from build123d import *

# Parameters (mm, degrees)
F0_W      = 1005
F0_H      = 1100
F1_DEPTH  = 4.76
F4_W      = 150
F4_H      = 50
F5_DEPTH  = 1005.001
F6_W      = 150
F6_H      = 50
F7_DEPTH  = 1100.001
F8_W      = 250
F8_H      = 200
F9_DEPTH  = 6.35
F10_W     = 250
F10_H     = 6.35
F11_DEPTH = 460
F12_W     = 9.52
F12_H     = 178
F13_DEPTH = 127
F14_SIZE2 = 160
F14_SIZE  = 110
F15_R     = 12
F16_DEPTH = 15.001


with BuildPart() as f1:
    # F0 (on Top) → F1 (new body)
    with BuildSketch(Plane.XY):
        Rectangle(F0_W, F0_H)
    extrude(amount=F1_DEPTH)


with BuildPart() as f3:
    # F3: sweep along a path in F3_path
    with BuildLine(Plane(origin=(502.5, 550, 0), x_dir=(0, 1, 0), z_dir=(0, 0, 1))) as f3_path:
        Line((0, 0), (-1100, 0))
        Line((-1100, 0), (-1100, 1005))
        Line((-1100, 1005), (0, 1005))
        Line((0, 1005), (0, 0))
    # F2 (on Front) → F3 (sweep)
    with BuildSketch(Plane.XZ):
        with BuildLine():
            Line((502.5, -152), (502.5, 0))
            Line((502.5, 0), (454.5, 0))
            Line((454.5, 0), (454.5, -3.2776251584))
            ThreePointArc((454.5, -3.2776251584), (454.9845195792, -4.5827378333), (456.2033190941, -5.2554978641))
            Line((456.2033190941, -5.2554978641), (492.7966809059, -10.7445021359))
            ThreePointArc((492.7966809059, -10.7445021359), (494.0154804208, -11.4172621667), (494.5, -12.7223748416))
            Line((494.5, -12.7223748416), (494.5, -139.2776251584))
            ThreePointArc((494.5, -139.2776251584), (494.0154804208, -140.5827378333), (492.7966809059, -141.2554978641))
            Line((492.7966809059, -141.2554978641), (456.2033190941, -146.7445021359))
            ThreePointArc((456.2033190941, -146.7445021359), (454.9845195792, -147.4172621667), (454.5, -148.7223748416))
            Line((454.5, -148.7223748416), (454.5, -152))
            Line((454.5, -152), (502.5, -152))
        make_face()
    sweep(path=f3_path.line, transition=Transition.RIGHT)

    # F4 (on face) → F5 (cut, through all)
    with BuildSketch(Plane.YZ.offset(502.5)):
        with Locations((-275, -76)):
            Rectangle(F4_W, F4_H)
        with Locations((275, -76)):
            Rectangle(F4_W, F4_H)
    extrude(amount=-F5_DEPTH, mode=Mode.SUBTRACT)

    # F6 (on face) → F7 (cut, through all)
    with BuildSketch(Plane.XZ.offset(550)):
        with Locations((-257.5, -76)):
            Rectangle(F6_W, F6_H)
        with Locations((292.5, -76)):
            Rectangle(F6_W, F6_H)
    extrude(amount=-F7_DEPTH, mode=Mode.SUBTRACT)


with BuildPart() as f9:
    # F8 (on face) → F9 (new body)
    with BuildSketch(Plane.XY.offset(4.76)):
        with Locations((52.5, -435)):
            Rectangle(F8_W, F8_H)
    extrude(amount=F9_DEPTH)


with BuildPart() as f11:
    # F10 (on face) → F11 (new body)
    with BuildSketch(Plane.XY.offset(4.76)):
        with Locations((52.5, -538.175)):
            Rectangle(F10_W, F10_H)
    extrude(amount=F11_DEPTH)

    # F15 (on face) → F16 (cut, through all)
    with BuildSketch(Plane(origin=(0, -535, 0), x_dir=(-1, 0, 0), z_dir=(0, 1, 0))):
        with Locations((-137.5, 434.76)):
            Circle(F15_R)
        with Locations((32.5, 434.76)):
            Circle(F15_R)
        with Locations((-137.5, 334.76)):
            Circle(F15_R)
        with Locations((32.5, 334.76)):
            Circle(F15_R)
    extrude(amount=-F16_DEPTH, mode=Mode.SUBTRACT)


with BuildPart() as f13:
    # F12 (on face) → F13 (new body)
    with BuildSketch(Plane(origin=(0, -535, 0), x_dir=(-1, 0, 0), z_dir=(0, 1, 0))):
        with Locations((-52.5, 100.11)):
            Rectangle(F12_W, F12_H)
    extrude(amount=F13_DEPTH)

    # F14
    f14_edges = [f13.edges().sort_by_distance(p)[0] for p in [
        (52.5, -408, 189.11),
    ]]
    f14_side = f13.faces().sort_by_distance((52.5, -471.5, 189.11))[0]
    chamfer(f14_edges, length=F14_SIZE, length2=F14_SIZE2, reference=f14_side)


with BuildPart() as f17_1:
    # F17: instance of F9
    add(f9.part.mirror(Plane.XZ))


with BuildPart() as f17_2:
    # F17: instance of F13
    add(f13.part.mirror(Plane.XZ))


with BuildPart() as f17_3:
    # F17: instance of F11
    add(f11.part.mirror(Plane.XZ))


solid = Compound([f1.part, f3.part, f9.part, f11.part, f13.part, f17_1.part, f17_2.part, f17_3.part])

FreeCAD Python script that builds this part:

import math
import FreeCAD as App
import Part
import Sketcher

V = App.Vector
Q = App.Units.Quantity


def edges_at(feature, points):
    """Names of the edges that pass closest to the given points."""
    edges = feature.Shape.Edges
    near = lambda p: min(range(len(edges)), key=lambda i: edges[i].distToShape(Part.Vertex(*p))[0])
    return sorted({f"Edge{near(p) + 1}" for p in points})


def add_polygon(sketch, points):
    """Adds a closed chain of lines whose ends are joined by coincident constraints."""
    first, n = sketch.GeometryCount, len(points)
    for a, b in zip(points, points[1:] + points[:1]):
        sketch.addGeometry(Part.LineSegment(App.Vector(*a, 0), App.Vector(*b, 0)), False)
    for i in range(n):
        sketch.addConstraint(Sketcher.Constraint("Coincident", first + i, 2, first + (i + 1) % n, 1))

doc = App.newDocument("Part")
params = doc.addObject("Spreadsheet::Sheet", "Params")
for row, (alias, value) in enumerate([
    ("sketch1_width", "1005 mm"),
    ("sketch1_height", "1100 mm"),
    ("pad1_length", "4.76 mm"),
    ("sketch2_radius", "2 mm"),
    ("sketch2_width", "48 mm"),
    ("sketch2_height", "152 mm"),
    ("sketch3_width", "1005 mm"),
    ("sketch3_height", "1100 mm"),
    ("sketch4_width", "150 mm"),
    ("sketch4_height", "50 mm"),
    ("sketch5_width", "150 mm"),
    ("sketch5_height", "50 mm"),
    ("sketch6_width", "250 mm"),
    ("sketch6_height", "200 mm"),
    ("pad2_length", "6.35 mm"),
    ("sketch7_width", "250 mm"),
    ("sketch7_height", "6.35 mm"),
    ("pad3_length", "460 mm"),
    ("sketch8_diameter", "24 mm"),
    ("sketch9_height", "178 mm"),
    ("sketch9_width", "9.52 mm"),
    ("pad4_length", "127 mm"),
    ("chamfer_size", "110 mm"),
    ("chamfer_size2", "160 mm"),
], start=1):
    params.set(f"A{row}", alias)
    params.set(f"B{row}", "=" + value)
    params.setAlias(f"B{row}", alias)

body = doc.addObject("PartDesign::Body", "Body")

sketch1 = body.newObject("Sketcher::SketchObject", "Sketch")
sketch1.AttachmentSupport = (doc.getObject("XY_Plane"), [""])
sketch1.MapMode = "FlatFace"
add_polygon(sketch1, [(-502, 550), (-502, -550), (502, -550), (502, 550)])
sketch1.addConstraint(Sketcher.Constraint("Vertical", 0))
sketch1.addConstraint(Sketcher.Constraint("Horizontal", 1))
sketch1.addConstraint(Sketcher.Constraint("Vertical", 2))
sketch1.addConstraint(Sketcher.Constraint("Horizontal", 3))
sketch1.addConstraint(Sketcher.Constraint("Symmetric", 0, 2, 2, 2, -1, 1))
sketch1.addConstraint(Sketcher.Constraint("DistanceX", 1, 1, 1, 2, Q("1005 mm")))
sketch1.addConstraint(Sketcher.Constraint("DistanceY", 0, 2, 0, 1, Q("1100 mm")))
sketch1.setExpression("Constraints[9]", "Params.sketch1_width")
sketch1.setExpression("Constraints[10]", "Params.sketch1_height")
pad1 = body.newObject("PartDesign::Pad", "Pad")
pad1.Profile = sketch1
pad1.setExpression("Length", "Params.pad1_length")
body2 = doc.addObject("PartDesign::Body", "Body001")

sketch2 = body2.newObject("Sketcher::SketchObject", "Sketch001")
sketch2.AttachmentSupport = (doc.getObject("XZ_Plane001"), [""])
sketch2.MapMode = "FlatFace"
sketch2.addGeometry(Part.LineSegment(V(502.5, -152, 0), V(502.5, 0, 0)), False)
sketch2.addGeometry(Part.LineSegment(V(502.5, 0, 0), V(454.5, 0, 0)), False)
sketch2.addGeometry(Part.LineSegment(V(454.5, 0, 0), V(454.5, -3.3, 0)), False)
sketch2.addGeometry(Part.ArcOfCircle(Part.Circle(V(456.5, -3.3, 0), V(0, 0, 1), 2), math.radians(180), math.radians(261)), False)
sketch2.addGeometry(Part.LineSegment(V(456.2, -5.3, 0), V(492.8, -10.7, 0)), False)
sketch2.addGeometry(Part.ArcOfCircle(Part.Circle(V(492.5, -12.7, 0), V(0, 0, 1), 2), math.radians(0), math.radians(81)), False)
sketch2.addGeometry(Part.LineSegment(V(494.5, -12.7, 0), V(494.5, -139.3, 0)), False)
sketch2.addGeometry(Part.ArcOfCircle(Part.Circle(V(492.5, -139.3, 0), V(0, 0, 1), 2), math.radians(-81), math.radians(0)), False)
sketch2.addGeometry(Part.LineSegment(V(492.8, -141.3, 0), V(456.2, -146.7, 0)), False)
sketch2.addGeometry(Part.ArcOfCircle(Part.Circle(V(456.5, -148.7, 0), V(0, 0, 1), 2), math.radians(99), math.radians(180)), False)
sketch2.addGeometry(Part.LineSegment(V(454.5, -148.7, 0), V(454.5, -152, 0)), False)
sketch2.addGeometry(Part.LineSegment(V(454.5, -152, 0), V(502.5, -152, 0)), False)
sketch2.addConstraint(Sketcher.Constraint("Coincident", 0, 2, 1, 1))
sketch2.addConstraint(Sketcher.Constraint("Coincident", 1, 2, 2, 1))
sketch2.addConstraint(Sketcher.Constraint("Tangent", 2, 2, 3, 1))
sketch2.addConstraint(Sketcher.Constraint("Tangent", 3, 2, 4, 1))
sketch2.addConstraint(Sketcher.Constraint("Tangent", 4, 2, 5, 2))
sketch2.addConstraint(Sketcher.Constraint("Tangent", 5, 1, 6, 1))
sketch2.addConstraint(Sketcher.Constraint("Tangent", 6, 2, 7, 2))
sketch2.addConstraint(Sketcher.Constraint("Tangent", 7, 1, 8, 1))
sketch2.addConstraint(Sketcher.Constraint("Tangent", 8, 2, 9, 1))
sketch2.addConstraint(Sketcher.Constraint("Tangent", 9, 2, 10, 1))
sketch2.addConstraint(Sketcher.Constraint("Coincident", 10, 2, 11, 1))
sketch2.addConstraint(Sketcher.Constraint("Coincident", 11, 2, 0, 1))
sketch2.addConstraint(Sketcher.Constraint("Vertical", 0))
sketch2.addConstraint(Sketcher.Constraint("Horizontal", 1))
sketch2.addConstraint(Sketcher.Constraint("Vertical", 2))
sketch2.addConstraint(Sketcher.Constraint("Vertical", 6))
sketch2.addConstraint(Sketcher.Constraint("Vertical", 10))
sketch2.addConstraint(Sketcher.Constraint("Horizontal", 11))
sketch2.addConstraint(Sketcher.Constraint("Equal", 3, 5))
sketch2.addConstraint(Sketcher.Constraint("Equal", 5, 7))
sketch2.addConstraint(Sketcher.Constraint("Equal", 7, 9))
sketch2.addConstraint(Sketcher.Constraint("PointOnObject", 0, 2, -1))
sketch2.addConstraint(Sketcher.Constraint("Vertical", 3, 3, 9, 3))
sketch2.addConstraint(Sketcher.Constraint("Vertical", 4, 2, 7, 1))
sketch2.addConstraint(Sketcher.Constraint("Equal", 2, 10))
sketch2.addConstraint(Sketcher.Constraint("Radius", 3, Q("2 mm")))
sketch2.addConstraint(Sketcher.Constraint("DistanceX", 1, 2, 1, 1, Q("48 mm")))
sketch2.addConstraint(Sketcher.Constraint("DistanceY", 0, 1, 0, 2, Q("152 mm")))
sketch2.addConstraint(Sketcher.Constraint("DistanceX", 3, 3, 5, 3, Q("36 mm")))
sketch2.addConstraint(Sketcher.Constraint("DistanceY", 7, 3, 3, 3, Q("136 mm")))
sketch2.addConstraint(Sketcher.Constraint("DistanceX", -1, 1, 3, 3, Q("456.5 mm")))
sketch2.addConstraint(Sketcher.Constraint("DistanceY", 6, 2, 6, 1, Q("126.55525 mm")))
sketch2.setExpression("Constraints[25]", "Params.sketch2_radius")
sketch2.setExpression("Constraints[26]", "Params.sketch2_width")
sketch2.setExpression("Constraints[27]", "Params.sketch2_height")

sketch3 = body2.newObject("Sketcher::SketchObject", "Sketch002")
sketch3.AttachmentSupport = (doc.getObject("XY_Plane001"), [""])
sketch3.MapMode = "FlatFace"
add_polygon(sketch3, [(502, 550), (502, -550), (-502, -550), (-502, 550)])
sketch3.addConstraint(Sketcher.Constraint("Vertical", 0))
sketch3.addConstraint(Sketcher.Constraint("Horizontal", 1))
sketch3.addConstraint(Sketcher.Constraint("Vertical", 2))
sketch3.addConstraint(Sketcher.Constraint("Horizontal", 3))
sketch3.addConstraint(Sketcher.Constraint("Symmetric", 0, 2, 2, 2, -1, 1))
sketch3.addConstraint(Sketcher.Constraint("DistanceX", 1, 2, 1, 1, Q("1005 mm")))
sketch3.addConstraint(Sketcher.Constraint("DistanceY", 0, 2, 0, 1, Q("1100 mm")))
sketch3.setExpression("Constraints[9]", "Params.sketch3_width")
sketch3.setExpression("Constraints[10]", "Params.sketch3_height")
doc.recompute()

additivepipe = body2.newObject("PartDesign::AdditivePipe", "AdditivePipe")
additivepipe.Profile = sketch2
additivepipe.Spine = (sketch3, ["Edge1", "Edge2", "Edge3", "Edge4"])
additivepipe.Transition = "Right corner"

sketch4 = body2.newObject("Sketcher::SketchObject", "Sketch003")
sketch4.AttachmentSupport = (doc.getObject("YZ_Plane001"), [""])
sketch4.MapMode = "FlatFace"
sketch4.AttachmentOffset = App.Placement(V(0, 0, 502.5), App.Rotation())
add_polygon(sketch4, [(-350, -51), (-350, -101), (-200, -101), (-200, -51)])
add_polygon(sketch4, [(200, -51), (200, -101), (350, -101), (350, -51)])
sketch4.addConstraint(Sketcher.Constraint("Vertical", 0))
sketch4.addConstraint(Sketcher.Constraint("Horizontal", 1))
sketch4.addConstraint(Sketcher.Constraint("Vertical", 2))
sketch4.addConstraint(Sketcher.Constraint("Horizontal", 3))
sketch4.addConstraint(Sketcher.Constraint("Vertical", 4))
sketch4.addConstraint(Sketcher.Constraint("Horizontal", 5))
sketch4.addConstraint(Sketcher.Constraint("Vertical", 6))
sketch4.addConstraint(Sketcher.Constraint("Horizontal", 7))
sketch4.addConstraint(Sketcher.Constraint("Symmetric", 1, 2, 4, 2, -2))
sketch4.addConstraint(Sketcher.Constraint("Symmetric", 3, 2, 6, 2, -2))
sketch4.addConstraint(Sketcher.Constraint("DistanceX", 1, 1, 1, 2, Q("150 mm")))
sketch4.addConstraint(Sketcher.Constraint("DistanceY", 0, 2, 0, 1, Q("50 mm")))
sketch4.addConstraint(Sketcher.Constraint("DistanceX", 0, 2, -1, 1, Q("350 mm")))
sketch4.addConstraint(Sketcher.Constraint("DistanceY", 0, 2, -1, 1, Q("101 mm")))
sketch4.setExpression("Constraints[18]", "Params.sketch4_width")
sketch4.setExpression("Constraints[19]", "Params.sketch4_height")
pocket1 = body2.newObject("PartDesign::Pocket", "Pocket")
pocket1.Profile = sketch4
pocket1.Type = "ThroughAll"

sketch5 = body2.newObject("Sketcher::SketchObject", "Sketch004")
sketch5.AttachmentSupport = (doc.getObject("XZ_Plane001"), [""])
sketch5.MapMode = "FlatFace"
sketch5.AttachmentOffset = App.Placement(V(0, 0, 550), App.Rotation())
add_polygon(sketch5, [(-332, -51), (-332, -101), (-182, -101), (-182, -51)])
add_polygon(sketch5, [(218, -51), (218, -101), (368, -101), (368, -51)])
sketch5.addConstraint(Sketcher.Constraint("Vertical", 0))
sketch5.addConstraint(Sketcher.Constraint("Horizontal", 1))
sketch5.addConstraint(Sketcher.Constraint("Vertical", 2))
sketch5.addConstraint(Sketcher.Constraint("Horizontal", 3))
sketch5.addConstraint(Sketcher.Constraint("Vertical", 4))
sketch5.addConstraint(Sketcher.Constraint("Horizontal", 5))
sketch5.addConstraint(Sketcher.Constraint("Vertical", 6))
sketch5.addConstraint(Sketcher.Constraint("Horizontal", 7))
sketch5.addConstraint(Sketcher.Constraint("Horizontal", 1, 2, 4, 2))
sketch5.addConstraint(Sketcher.Constraint("Horizontal", 3, 2, 6, 2))
sketch5.addConstraint(Sketcher.Constraint("Equal", 3, 5))
sketch5.addConstraint(Sketcher.Constraint("DistanceX", 1, 1, 1, 2, Q("150 mm")))
sketch5.addConstraint(Sketcher.Constraint("DistanceY", 0, 2, 0, 1, Q("50 mm")))
sketch5.addConstraint(Sketcher.Constraint("DistanceY", 0, 2, -1, 1, Q("101 mm")))
sketch5.addConstraint(Sketcher.Constraint("DistanceX", 1, 2, 4, 2, Q("400 mm")))
sketch5.addConstraint(Sketcher.Constraint("DistanceX", 0, 2, -1, 1, Q("332.5 mm")))
sketch5.setExpression("Constraints[19]", "Params.sketch5_width")
sketch5.setExpression("Constraints[20]", "Params.sketch5_height")
pocket2 = body2.newObject("PartDesign::Pocket", "Pocket001")
pocket2.Profile = sketch5
pocket2.Type = "ThroughAll"
body3 = doc.addObject("PartDesign::Body", "Body002")

sketch6 = body3.newObject("Sketcher::SketchObject", "Sketch005")
sketch6.AttachmentSupport = (doc.getObject("XY_Plane002"), [""])
sketch6.MapMode = "FlatFace"
sketch6.AttachmentOffset = App.Placement(V(0, 0, 4.76), App.Rotation())
add_polygon(sketch6, [(-72, -335), (-72, -535), (178, -535), (178, -335)])
sketch6.addConstraint(Sketcher.Constraint("Vertical", 0))
sketch6.addConstraint(Sketcher.Constraint("Horizontal", 1))
sketch6.addConstraint(Sketcher.Constraint("Vertical", 2))
sketch6.addConstraint(Sketcher.Constraint("Horizontal", 3))
sketch6.addConstraint(Sketcher.Constraint("DistanceX", 1, 1, 1, 2, Q("250 mm")))
sketch6.addConstraint(Sketcher.Constraint("DistanceY", 0, 2, 0, 1, Q("200 mm")))
sketch6.addConstraint(Sketcher.Constraint("DistanceY", 0, 2, -1, 1, Q("535 mm")))
sketch6.addConstraint(Sketcher.Constraint("DistanceX", 0, 2, -1, 1, Q("72.5 mm")))
sketch6.setExpression("Constraints[8]", "Params.sketch6_width")
sketch6.setExpression("Constraints[9]", "Params.sketch6_height")
pad2 = body3.newObject("PartDesign::Pad", "Pad001")
pad2.Profile = sketch6
pad2.setExpression("Length", "Params.pad2_length")
body4 = doc.addObject("PartDesign::Body", "Body003")

sketch7 = body4.newObject("Sketcher::SketchObject", "Sketch006")
sketch7.AttachmentSupport = (doc.getObject("XY_Plane003"), [""])
sketch7.MapMode = "FlatFace"
sketch7.AttachmentOffset = App.Placement(V(0, 0, 4.76), App.Rotation())
add_polygon(sketch7, [(-72, -535), (-72, -541), (178, -541), (178, -535)])
sketch7.addConstraint(Sketcher.Constraint("Vertical", 0))
sketch7.addConstraint(Sketcher.Constraint("Horizontal", 1))
sketch7.addConstraint(Sketcher.Constraint("Vertical", 2))
sketch7.addConstraint(Sketcher.Constraint("Horizontal", 3))
sketch7.addConstraint(Sketcher.Constraint("DistanceX", 1, 1, 1, 2, Q("250 mm")))
sketch7.addConstraint(Sketcher.Constraint("DistanceY", 2, 2, -1, 1, Q("535 mm")))
sketch7.addConstraint(Sketcher.Constraint("DistanceY", 0, 2, 0, 1, Q("6.35 mm")))
sketch7.addConstraint(Sketcher.Constraint("DistanceX", 0, 2, -1, 1, Q("72.5 mm")))
sketch7.setExpression("Constraints[8]", "Params.sketch7_width")
sketch7.setExpression("Constraints[10]", "Params.sketch7_height")
pad3 = body4.newObject("PartDesign::Pad", "Pad002")
pad3.Profile = sketch7
pad3.setExpression("Length", "Params.pad3_length")

sketch8 = body4.newObject("Sketcher::SketchObject", "Sketch007")
sketch8.AttachmentSupport = (doc.getObject("XZ_Plane003"), [""])
sketch8.MapMode = "FlatFace"
sketch8.AttachmentOffset = App.Placement(V(0, 0, 535), App.Rotation())
sketch8.addGeometry(Part.Circle(V(138, 435, 0), V(0, 0, 1), 12), False)
sketch8.addGeometry(Part.Circle(V(-32, 435, 0), V(0, 0, 1), 12), False)
sketch8.addGeometry(Part.Circle(V(138, 335, 0), V(0, 0, 1), 12), False)
sketch8.addGeometry(Part.Circle(V(-32, 335, 0), V(0, 0, 1), 12), False)
sketch8.addConstraint(Sketcher.Constraint("Equal", 0, 1))
sketch8.addConstraint(Sketcher.Constraint("Equal", 1, 2))
sketch8.addConstraint(Sketcher.Constraint("Equal", 2, 3))
sketch8.addConstraint(Sketcher.Constraint("Horizontal", 0, 3, 1, 3))
sketch8.addConstraint(Sketcher.Constraint("Horizontal", 2, 3, 3, 3))
sketch8.addConstraint(Sketcher.Constraint("Vertical", 0, 3, 2, 3))
sketch8.addConstraint(Sketcher.Constraint("Vertical", 1, 3, 3, 3))
sketch8.addConstraint(Sketcher.Constraint("Diameter", 0, Q("24 mm")))
sketch8.addConstraint(Sketcher.Constraint("DistanceX", 1, 3, 0, 3, Q("170 mm")))
sketch8.addConstraint(Sketcher.Constraint("DistanceY", 2, 3, 0, 3, Q("100 mm")))
sketch8.addConstraint(Sketcher.Constraint("DistanceX", -1, 1, 0, 3, Q("137.5 mm")))
sketch8.addConstraint(Sketcher.Constraint("DistanceY", -1, 1, 0, 3, Q("434.76 mm")))
sketch8.setExpression("Constraints[7]", "Params.sketch8_diameter")
pocket3 = body4.newObject("PartDesign::Pocket", "Pocket002")
pocket3.Profile = sketch8
pocket3.Type = "ThroughAll"
pocket3.Reversed = True
body5 = doc.addObject("PartDesign::Body", "Body004")

sketch9 = body5.newObject("Sketcher::SketchObject", "Sketch008")
sketch9.AttachmentSupport = (doc.getObject("XZ_Plane004"), [""])
sketch9.MapMode = "FlatFace"
sketch9.AttachmentOffset = App.Placement(V(0, 0, 535), App.Rotation())
add_polygon(sketch9, [(57, 189), (57, 11), (48, 11), (48, 189)])
sketch9.addConstraint(Sketcher.Constraint("Vertical", 0))
sketch9.addConstraint(Sketcher.Constraint("Horizontal", 1))
sketch9.addConstraint(Sketcher.Constraint("Vertical", 2))
sketch9.addConstraint(Sketcher.Constraint("Horizontal", 3))
sketch9.addConstraint(Sketcher.Constraint("DistanceY", 0, 2, 0, 1, Q("178 mm")))
sketch9.addConstraint(Sketcher.Constraint("DistanceX", 1, 2, 1, 1, Q("9.52 mm")))
sketch9.addConstraint(Sketcher.Constraint("DistanceX", -1, 1, 0, 2, Q("57.26 mm")))
sketch9.addConstraint(Sketcher.Constraint("DistanceY", -1, 1, 0, 2, Q("11.11 mm")))
sketch9.setExpression("Constraints[8]", "Params.sketch9_height")
sketch9.setExpression("Constraints[9]", "Params.sketch9_width")
pad4 = body5.newObject("PartDesign::Pad", "Pad003")
pad4.Profile = sketch9
pad4.setExpression("Length", "Params.pad4_length")
pad4.Reversed = True
doc.recompute()

chamfer = body5.newObject("PartDesign::Chamfer", "Chamfer")
chamfer.Base = (pad4, edges_at(pad4, [(52.5, -408, 189.11)]))
chamfer.ChamferType = "Two distances"
chamfer.setExpression("Size", "Params.chamfer_size")
chamfer.setExpression("Size2", "Params.chamfer_size2")
body6 = doc.addObject("PartDesign::Body", "Body005")
doc.recompute()

mirroring = doc.addObject("Part::Mirroring", "Mirroring")
mirroring.Source = body3
mirroring.Base = V(0, 0, 0)
mirroring.Normal = V(0, -1, 0)
body6.BaseFeature = mirroring
doc.recompute()
body7 = doc.addObject("PartDesign::Body", "Body006")
doc.recompute()

mirroring2 = doc.addObject("Part::Mirroring", "Mirroring001")
mirroring2.Source = body5
mirroring2.Base = V(0, 0, 0)
mirroring2.Normal = V(0, -1, 0)
body7.BaseFeature = mirroring2
doc.recompute()
body8 = doc.addObject("PartDesign::Body", "Body007")
doc.recompute()

mirroring3 = doc.addObject("Part::Mirroring", "Mirroring002")
mirroring3.Source = body4
mirroring3.Base = V(0, 0, 0)
mirroring3.Normal = V(0, -1, 0)
body8.BaseFeature = mirroring3
doc.recompute()
mirroring.Visibility = False
mirroring2.Visibility = False
mirroring3.Visibility = False

doc.recompute()
